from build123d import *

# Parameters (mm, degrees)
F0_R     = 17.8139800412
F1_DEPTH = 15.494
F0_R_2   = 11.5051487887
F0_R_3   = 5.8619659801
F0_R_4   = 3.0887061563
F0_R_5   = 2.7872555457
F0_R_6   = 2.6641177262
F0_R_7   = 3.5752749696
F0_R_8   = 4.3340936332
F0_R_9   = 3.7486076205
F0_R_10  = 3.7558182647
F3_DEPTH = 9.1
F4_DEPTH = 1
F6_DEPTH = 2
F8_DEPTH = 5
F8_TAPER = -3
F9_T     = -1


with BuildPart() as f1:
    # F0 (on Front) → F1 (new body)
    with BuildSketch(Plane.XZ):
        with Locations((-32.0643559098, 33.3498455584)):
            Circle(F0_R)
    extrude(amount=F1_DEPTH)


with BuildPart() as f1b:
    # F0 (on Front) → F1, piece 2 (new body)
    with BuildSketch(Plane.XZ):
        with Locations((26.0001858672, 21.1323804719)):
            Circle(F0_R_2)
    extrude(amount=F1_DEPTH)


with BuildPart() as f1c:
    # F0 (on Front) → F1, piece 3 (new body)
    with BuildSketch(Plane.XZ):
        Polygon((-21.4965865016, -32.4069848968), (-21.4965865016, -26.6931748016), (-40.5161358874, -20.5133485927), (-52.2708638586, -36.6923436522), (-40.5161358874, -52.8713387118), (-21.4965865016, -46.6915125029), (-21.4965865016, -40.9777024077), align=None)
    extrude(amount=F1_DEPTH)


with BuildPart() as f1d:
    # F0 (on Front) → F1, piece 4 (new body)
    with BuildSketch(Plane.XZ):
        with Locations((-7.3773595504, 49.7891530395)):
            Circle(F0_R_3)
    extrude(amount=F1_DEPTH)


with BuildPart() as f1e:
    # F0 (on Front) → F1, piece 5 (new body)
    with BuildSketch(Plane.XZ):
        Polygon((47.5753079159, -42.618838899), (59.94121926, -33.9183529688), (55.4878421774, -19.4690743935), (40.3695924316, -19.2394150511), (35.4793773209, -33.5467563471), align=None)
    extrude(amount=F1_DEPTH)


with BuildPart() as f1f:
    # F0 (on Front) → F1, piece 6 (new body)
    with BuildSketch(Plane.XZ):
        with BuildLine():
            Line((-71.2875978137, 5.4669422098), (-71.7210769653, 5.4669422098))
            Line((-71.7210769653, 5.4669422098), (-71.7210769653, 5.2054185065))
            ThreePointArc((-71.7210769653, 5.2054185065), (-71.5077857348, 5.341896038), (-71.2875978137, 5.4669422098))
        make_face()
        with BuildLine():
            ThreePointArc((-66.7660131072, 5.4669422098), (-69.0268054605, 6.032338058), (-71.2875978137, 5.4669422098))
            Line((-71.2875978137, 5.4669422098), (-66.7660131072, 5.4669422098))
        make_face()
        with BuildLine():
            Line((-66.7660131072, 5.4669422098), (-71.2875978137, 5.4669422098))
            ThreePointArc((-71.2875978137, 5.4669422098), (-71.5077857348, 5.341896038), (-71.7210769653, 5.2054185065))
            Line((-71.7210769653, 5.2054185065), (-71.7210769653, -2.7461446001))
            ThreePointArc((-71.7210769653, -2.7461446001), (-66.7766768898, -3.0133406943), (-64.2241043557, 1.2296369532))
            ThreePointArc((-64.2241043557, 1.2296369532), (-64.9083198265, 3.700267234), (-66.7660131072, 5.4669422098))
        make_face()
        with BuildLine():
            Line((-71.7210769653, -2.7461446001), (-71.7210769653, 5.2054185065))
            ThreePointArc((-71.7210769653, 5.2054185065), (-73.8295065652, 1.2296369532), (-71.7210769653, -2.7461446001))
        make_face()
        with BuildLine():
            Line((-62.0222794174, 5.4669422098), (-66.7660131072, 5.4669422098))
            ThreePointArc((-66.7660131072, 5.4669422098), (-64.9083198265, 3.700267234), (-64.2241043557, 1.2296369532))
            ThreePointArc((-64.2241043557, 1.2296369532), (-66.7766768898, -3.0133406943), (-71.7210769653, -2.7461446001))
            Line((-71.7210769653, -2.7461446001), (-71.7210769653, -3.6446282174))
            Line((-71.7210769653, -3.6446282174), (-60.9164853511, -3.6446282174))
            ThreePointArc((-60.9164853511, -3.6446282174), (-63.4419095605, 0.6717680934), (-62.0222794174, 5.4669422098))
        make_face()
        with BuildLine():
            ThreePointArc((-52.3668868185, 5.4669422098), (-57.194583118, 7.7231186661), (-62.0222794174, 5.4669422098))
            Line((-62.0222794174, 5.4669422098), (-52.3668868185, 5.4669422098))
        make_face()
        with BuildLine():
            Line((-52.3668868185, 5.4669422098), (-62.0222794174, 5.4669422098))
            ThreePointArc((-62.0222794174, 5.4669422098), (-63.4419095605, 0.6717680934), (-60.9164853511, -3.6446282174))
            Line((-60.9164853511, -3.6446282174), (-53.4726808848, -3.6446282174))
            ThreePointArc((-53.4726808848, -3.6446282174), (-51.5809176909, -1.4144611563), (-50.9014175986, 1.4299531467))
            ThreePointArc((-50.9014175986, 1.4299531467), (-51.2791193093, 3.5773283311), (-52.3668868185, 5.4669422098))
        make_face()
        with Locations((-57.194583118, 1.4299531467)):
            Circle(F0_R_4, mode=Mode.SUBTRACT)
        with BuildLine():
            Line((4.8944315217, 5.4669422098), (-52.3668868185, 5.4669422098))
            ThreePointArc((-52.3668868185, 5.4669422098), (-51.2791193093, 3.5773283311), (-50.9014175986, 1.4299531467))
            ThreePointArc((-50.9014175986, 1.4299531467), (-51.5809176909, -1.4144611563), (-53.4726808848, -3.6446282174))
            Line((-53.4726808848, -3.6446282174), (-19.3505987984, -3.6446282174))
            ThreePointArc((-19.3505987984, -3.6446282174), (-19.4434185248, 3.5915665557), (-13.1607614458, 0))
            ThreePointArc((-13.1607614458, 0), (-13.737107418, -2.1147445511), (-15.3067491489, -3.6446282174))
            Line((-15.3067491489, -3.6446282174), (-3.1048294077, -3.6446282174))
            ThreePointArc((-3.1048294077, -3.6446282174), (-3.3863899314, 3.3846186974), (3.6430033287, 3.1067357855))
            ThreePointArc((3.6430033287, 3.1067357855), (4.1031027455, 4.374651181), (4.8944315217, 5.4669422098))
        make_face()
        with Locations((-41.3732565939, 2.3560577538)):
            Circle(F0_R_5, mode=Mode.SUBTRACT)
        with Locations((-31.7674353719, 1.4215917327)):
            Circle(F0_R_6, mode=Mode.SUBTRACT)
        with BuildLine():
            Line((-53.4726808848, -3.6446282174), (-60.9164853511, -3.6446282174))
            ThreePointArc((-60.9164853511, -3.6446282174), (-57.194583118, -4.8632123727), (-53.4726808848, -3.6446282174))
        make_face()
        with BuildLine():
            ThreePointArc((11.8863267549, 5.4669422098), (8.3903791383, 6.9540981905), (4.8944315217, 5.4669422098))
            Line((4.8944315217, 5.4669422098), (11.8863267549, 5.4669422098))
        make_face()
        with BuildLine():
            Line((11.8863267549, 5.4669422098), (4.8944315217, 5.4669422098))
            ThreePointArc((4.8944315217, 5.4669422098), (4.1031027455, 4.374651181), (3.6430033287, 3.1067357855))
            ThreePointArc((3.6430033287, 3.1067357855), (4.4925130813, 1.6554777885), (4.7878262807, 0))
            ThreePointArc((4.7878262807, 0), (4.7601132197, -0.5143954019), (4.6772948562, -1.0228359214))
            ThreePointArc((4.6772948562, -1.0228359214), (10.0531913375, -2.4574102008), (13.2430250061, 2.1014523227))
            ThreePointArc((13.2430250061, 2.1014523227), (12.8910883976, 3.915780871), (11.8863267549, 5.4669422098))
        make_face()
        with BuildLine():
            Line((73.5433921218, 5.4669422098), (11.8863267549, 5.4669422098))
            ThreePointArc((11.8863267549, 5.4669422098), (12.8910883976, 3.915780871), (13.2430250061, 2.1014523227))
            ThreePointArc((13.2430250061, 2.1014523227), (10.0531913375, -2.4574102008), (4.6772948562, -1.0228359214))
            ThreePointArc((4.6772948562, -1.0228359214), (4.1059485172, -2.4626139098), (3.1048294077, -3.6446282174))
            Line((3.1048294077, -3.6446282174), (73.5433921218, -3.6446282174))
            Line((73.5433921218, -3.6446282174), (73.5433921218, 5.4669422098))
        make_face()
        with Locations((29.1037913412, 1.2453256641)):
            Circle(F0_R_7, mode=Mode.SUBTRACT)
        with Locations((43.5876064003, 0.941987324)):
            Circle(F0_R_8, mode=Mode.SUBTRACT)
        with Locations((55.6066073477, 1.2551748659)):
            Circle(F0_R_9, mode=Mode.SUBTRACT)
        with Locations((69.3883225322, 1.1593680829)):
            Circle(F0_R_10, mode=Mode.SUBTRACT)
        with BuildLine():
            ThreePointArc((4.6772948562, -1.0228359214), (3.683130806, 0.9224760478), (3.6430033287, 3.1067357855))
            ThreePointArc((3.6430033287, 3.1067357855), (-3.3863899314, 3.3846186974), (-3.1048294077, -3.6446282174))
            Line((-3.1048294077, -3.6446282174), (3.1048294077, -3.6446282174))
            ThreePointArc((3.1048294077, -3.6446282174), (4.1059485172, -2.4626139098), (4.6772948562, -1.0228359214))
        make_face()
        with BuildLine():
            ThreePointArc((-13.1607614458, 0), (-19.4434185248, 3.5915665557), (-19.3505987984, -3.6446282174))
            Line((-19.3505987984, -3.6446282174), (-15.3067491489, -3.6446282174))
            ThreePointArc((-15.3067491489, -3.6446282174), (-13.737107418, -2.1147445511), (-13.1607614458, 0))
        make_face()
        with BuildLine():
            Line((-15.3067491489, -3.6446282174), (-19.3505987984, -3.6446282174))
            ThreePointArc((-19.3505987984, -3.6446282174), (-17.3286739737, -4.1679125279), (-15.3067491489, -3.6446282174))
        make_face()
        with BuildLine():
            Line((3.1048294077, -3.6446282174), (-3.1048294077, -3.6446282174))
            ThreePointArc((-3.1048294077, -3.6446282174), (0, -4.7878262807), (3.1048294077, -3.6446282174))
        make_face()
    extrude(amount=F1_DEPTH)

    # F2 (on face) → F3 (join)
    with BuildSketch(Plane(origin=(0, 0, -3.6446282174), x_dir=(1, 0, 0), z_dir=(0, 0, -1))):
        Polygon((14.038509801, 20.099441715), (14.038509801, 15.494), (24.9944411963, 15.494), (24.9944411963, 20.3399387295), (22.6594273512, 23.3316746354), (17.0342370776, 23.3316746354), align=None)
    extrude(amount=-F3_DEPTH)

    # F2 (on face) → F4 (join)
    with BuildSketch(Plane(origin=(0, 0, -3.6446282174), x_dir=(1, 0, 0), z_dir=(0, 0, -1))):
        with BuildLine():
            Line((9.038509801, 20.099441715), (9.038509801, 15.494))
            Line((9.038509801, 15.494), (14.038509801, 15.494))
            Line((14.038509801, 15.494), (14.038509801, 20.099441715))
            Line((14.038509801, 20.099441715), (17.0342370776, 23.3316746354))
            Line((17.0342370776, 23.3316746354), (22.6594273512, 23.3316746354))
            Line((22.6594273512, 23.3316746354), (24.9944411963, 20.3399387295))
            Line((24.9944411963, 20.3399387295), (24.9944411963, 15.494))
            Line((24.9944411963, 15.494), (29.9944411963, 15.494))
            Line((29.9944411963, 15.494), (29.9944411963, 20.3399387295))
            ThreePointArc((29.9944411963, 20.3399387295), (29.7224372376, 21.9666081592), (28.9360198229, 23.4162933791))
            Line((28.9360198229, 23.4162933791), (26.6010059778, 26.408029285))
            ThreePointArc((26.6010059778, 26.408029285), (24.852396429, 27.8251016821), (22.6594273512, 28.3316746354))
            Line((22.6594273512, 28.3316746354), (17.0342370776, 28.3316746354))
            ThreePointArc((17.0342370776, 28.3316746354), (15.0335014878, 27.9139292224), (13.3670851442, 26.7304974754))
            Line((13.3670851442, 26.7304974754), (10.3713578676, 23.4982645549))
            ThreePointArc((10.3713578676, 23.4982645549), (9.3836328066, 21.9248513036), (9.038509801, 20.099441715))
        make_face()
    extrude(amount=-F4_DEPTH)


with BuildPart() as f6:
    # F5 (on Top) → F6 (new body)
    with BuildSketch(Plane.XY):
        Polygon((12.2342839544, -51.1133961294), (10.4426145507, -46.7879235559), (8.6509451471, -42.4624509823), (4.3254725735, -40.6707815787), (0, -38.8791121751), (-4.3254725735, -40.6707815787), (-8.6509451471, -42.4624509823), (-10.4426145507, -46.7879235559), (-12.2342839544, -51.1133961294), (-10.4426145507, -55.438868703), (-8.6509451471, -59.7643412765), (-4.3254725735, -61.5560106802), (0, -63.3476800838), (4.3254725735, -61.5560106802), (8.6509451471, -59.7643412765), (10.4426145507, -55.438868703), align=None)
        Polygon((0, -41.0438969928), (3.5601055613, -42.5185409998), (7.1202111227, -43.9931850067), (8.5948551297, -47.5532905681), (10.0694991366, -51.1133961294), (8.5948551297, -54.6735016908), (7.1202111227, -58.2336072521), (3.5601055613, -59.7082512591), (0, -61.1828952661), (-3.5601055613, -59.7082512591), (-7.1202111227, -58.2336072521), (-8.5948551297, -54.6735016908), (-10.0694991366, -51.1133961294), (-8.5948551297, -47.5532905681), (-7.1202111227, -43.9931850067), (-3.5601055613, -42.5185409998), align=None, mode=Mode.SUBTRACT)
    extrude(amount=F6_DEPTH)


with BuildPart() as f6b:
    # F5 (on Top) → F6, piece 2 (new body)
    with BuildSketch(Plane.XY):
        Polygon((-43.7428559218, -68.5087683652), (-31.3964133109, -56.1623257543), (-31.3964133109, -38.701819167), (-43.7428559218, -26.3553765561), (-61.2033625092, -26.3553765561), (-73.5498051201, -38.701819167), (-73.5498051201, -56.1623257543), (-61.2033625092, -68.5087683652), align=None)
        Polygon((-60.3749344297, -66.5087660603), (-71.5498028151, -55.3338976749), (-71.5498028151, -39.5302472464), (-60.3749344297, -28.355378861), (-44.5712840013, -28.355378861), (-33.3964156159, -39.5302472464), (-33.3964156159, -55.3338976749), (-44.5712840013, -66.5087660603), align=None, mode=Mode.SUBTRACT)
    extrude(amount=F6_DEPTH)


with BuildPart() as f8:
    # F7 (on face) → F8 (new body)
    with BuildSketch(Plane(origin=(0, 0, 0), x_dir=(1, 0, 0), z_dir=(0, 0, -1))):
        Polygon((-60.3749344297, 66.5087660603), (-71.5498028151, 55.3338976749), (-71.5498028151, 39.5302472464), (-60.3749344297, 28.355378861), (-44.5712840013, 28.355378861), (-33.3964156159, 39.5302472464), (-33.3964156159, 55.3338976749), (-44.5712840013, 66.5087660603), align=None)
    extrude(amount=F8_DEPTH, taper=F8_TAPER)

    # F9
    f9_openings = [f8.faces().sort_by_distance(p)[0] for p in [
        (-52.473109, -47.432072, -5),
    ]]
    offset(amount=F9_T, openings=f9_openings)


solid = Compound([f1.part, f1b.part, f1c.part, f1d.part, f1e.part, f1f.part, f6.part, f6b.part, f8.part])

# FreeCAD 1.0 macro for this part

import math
import FreeCAD as App
import Part
import Sketcher
Q = App.Units.Quantity


def faces_at(feature, points):
    """Names of the faces that lie closest to the given points."""
    faces = feature.Shape.Faces
    near = lambda p: min(range(len(faces)), key=lambda i: faces[i].distToShape(Part.Vertex(*p))[0])
    return sorted({f"Face{near(p) + 1}" for p in points})


def add_polygon(sketch, points):
    """Adds a closed chain of lines whose ends are joined by coincident constraints."""
    first, n = sketch.GeometryCount, len(points)
    for a, b in zip(points, points[1:] + points[:1]):
        sketch.addGeometry(Part.LineSegment(App.Vector(*a, 0), App.Vector(*b, 0)), False)
    for i in range(n):
        sketch.addConstraint(Sketcher.Constraint("Coincident", first + i, 2, first + (i + 1) % n, 1))

doc = App.newDocument("Part")
body = doc.addObject("PartDesign::Body", "Body")

# Sketch on XZ plane
sketch1 = body.newObject("Sketcher::SketchObject", "Sketch")
sketch1.AttachmentSupport = (doc.getObject("XZ_Plane"), [""])
sketch1.MapMode = "FlatFace"
sketch1.addGeometry(Part.Circle(App.Vector(-32.064356, 33.349846, 0), App.Vector(0, 0, 1), 17.81398), False)
sketch1.addConstraint([
    Sketcher.Constraint("Diameter", 0, 35.62796),
    Sketcher.Constraint("DistanceX", 0, 3, -1, 1, 32.064356),
    Sketcher.Constraint("DistanceY", -1, 1, 0, 3, 33.349846),
])
pad1 = body.newObject("PartDesign::Pad", "Pad")
pad1.Profile = sketch1
pad1.Length = 15.494
body2 = doc.addObject("PartDesign::Body", "Body001")

# Sketch on XZ plane
sketch2 = body2.newObject("Sketcher::SketchObject", "Sketch001")
sketch2.AttachmentSupport = (doc.getObject("XZ_Plane001"), [""])
sketch2.MapMode = "FlatFace"
sketch2.addGeometry(Part.Circle(App.Vector(26.000186, 21.13238, 0), App.Vector(0, 0, 1), 11.505149), False)
sketch2.addConstraint([
    Sketcher.Constraint("Diameter", 0, 23.010298),
    Sketcher.Constraint("DistanceY", -1, 1, 0, 3, 21.13238),
    Sketcher.Constraint("DistanceX", -1, 1, 0, 3, 26.000186),
])
pad2 = body2.newObject("PartDesign::Pad", "Pad001")
pad2.Profile = sketch2
pad2.Length = 15.494
body3 = doc.addObject("PartDesign::Body", "Body002")

# Sketch on XZ plane
sketch3 = body3.newObject("Sketcher::SketchObject", "Sketch002")
sketch3.AttachmentSupport = (doc.getObject("XZ_Plane002"), [""])
sketch3.MapMode = "FlatFace"
add_polygon(sketch3, [(-21.496587, -26.693175), (-40.516136, -20.513349), (-52.270864, -36.692344), (-40.516136, -52.871339), (-21.496587, -46.691513)])  # lines 0-4
sketch3.addConstraint([
    Sketcher.Constraint("Vertical", 4),
    Sketcher.Constraint("Vertical", 0, 2, 2, 2),
    Sketcher.Constraint("Equal", 0, 1),
    Sketcher.Constraint("Equal", 1, 2),
    Sketcher.Constraint("Equal", 2, 3),
    Sketcher.Constraint("Angle", 0, Q("162 deg")),
    Sketcher.Constraint("Angle", 1, Q("-126 deg")),
    Sketcher.Constraint("DistanceY", 4, 1, 4, 2, 19.998338),
    Sketcher.Constraint("DistanceY", 0, 2, -1, 1, 20.513349),
    Sketcher.Constraint("DistanceX", 0, 2, -1, 1, 40.516136),
])
pad3 = body3.newObject("PartDesign::Pad", "Pad002")
pad3.Profile = sketch3
pad3.Length = 15.494
body4 = doc.addObject("PartDesign::Body", "Body003")

# Sketch on XZ plane
sketch4 = body4.newObject("Sketcher::SketchObject", "Sketch003")
sketch4.AttachmentSupport = (doc.getObject("XZ_Plane003"), [""])
sketch4.MapMode = "FlatFace"
sketch4.addGeometry(Part.Circle(App.Vector(-7.37736, 49.789153, 0), App.Vector(0, 0, 1), 5.861966), False)
sketch4.addConstraint([
    Sketcher.Constraint("Diameter", 0, 11.723932),
    Sketcher.Constraint("DistanceX", 0, 3, -1, 1, 7.37736),
    Sketcher.Constraint("DistanceY", -1, 1, 0, 3, 49.789153),
])
pad4 = body4.newObject("PartDesign::Pad", "Pad003")
pad4.Profile = sketch4
pad4.Length = 15.494
body5 = doc.addObject("PartDesign::Body", "Body004")

# Sketch on XZ plane
sketch5 = body5.newObject("Sketcher::SketchObject", "Sketch004")
sketch5.AttachmentSupport = (doc.getObject("XZ_Plane004"), [""])
sketch5.MapMode = "FlatFace"
add_polygon(sketch5, [(47.575308, -42.618839), (59.941219, -33.918353), (55.487842, -19.469074), (40.369592, -19.239415), (35.479377, -33.546756)])  # lines 0-4
sketch5.addConstraint([
    Sketcher.Constraint("Equal", 0, 1),
    Sketcher.Constraint("Equal", 1, 2),
    Sketcher.Constraint("Equal", 2, 3),
    Sketcher.Constraint("Equal", 3, 4),
    Sketcher.Constraint("DistanceX", -1, 1, 0, 2, 59.941219),
    Sketcher.Constraint("DistanceY", 4, 2, -1, 1, 42.618839),
    Sketcher.Constraint("DistanceY", 0, 2, 1, 2, 14.449279),
    Sketcher.Constraint("DistanceX", 2, 2, 1, 2, 15.11825),
    Sketcher.Constraint("DistanceY", 1, 2, 2, 2, 0.229659),
    Sketcher.Constraint("DistanceY", 3, 2, 2, 2, 14.307341),
])
pad5 = body5.newObject("PartDesign::Pad", "Pad004")
pad5.Profile = sketch5
pad5.Length = 15.494
body6 = doc.addObject("PartDesign::Body", "Body005")

# Sketch on XZ plane
sketch6 = body6.newObject("Sketcher::SketchObject", "Sketch005")
sketch6.AttachmentSupport = (doc.getObject("XZ_Plane005"), [""])
sketch6.MapMode = "FlatFace"
sketch6.addGeometry([
    Part.LineSegment(App.Vector(-71.287598, 5.466942, 0), App.Vector(-71.721077, 5.466942, 0)),  # 0
    Part.LineSegment(App.Vector(-71.721077, 5.466942, 0), App.Vector(-71.721077, 5.205419, 0)),  # 1
    Part.ArcOfCircle(Part.Circle(App.Vector(-69.026805, 1.229637, 0), App.Vector(0, 0, 1), 4.802701), math.radians(124.124351), math.radians(235.875649)),  # 2
    Part.LineSegment(App.Vector(-71.721077, -2.746145, 0), App.Vector(-71.721077, -3.644628, 0)),  # 3
    Part.LineSegment(App.Vector(-71.721077, -3.644628, 0), App.Vector(-60.916485, -3.644628, 0)),  # 4
    Part.ArcOfCircle(Part.Circle(App.Vector(-57.194583, 1.429953, 0), App.Vector(0, 0, 1), 6.293166), math.radians(-126.257821), math.radians(-53.742179)),  # 5
    Part.LineSegment(App.Vector(-53.472681, -3.644628, 0), App.Vector(-19.350599, -3.644628, 0)),  # 6
    Part.ArcOfCircle(Part.Circle(App.Vector(-17.328674, 0, 0), App.Vector(0, 0, 1), 4.167913), math.radians(-119.020132), math.radians(-60.979868)),  # 7
    Part.LineSegment(App.Vector(-15.306749, -3.644628, 0), App.Vector(-3.104829, -3.644628, 0)),  # 8
    Part.ArcOfCircle(Part.Circle(App.Vector(0, 0, 0), App.Vector(0, 0, 1), 4.787826), math.radians(-130.42741), math.radians(-49.57259)),  # 9
    Part.LineSegment(App.Vector(3.104829, -3.644628, 0), App.Vector(73.543392, -3.644628, 0)),  # 10
    Part.LineSegment(App.Vector(73.543392, -3.644628, 0), App.Vector(73.543392, 5.466942, 0)),  # 11
    Part.LineSegment(App.Vector(73.543392, 5.466942, 0), App.Vector(11.886327, 5.466942, 0)),  # 12
    Part.ArcOfCircle(Part.Circle(App.Vector(8.390379, 2.101452, 0), App.Vector(0, 0, 1), 4.852646), math.radians(43.910756), math.radians(136.089244)),  # 13
    Part.LineSegment(App.Vector(4.894432, 5.466942, 0), App.Vector(-52.366887, 5.466942, 0)),  # 14
    Part.ArcOfCircle(Part.Circle(App.Vector(-57.194583, 1.429953, 0), App.Vector(0, 0, 1), 6.293166), math.radians(39.902853), math.radians(140.097147)),  # 15
    Part.LineSegment(App.Vector(-62.022279, 5.466942, 0), App.Vector(-66.766013, 5.466942, 0)),  # 16
    Part.ArcOfCircle(Part.Circle(App.Vector(-69.026805, 1.229637, 0), App.Vector(0, 0, 1), 4.802701), math.radians(61.918079), math.radians(118.081921)),  # 17
    Part.ArcOfCircle(Part.Circle(App.Vector(0, 0, 0), App.Vector(0, 0, 1), 4.787826), math.radians(-12.335319), math.radians(0)),  # 18
    Part.ArcOfCircle(Part.Circle(App.Vector(8.390379, 2.101452, 0), App.Vector(0, 0, 1), 4.852646), math.radians(168.043915), math.radians(220.078152)),  # 19
    Part.ArcOfCircle(Part.Circle(App.Vector(0, 0, 0), App.Vector(0, 0, 1), 4.787826), math.radians(0), math.radians(40.457386)),  # 20
    Part.Circle(App.Vector(-57.194583, 1.429953, 0), App.Vector(0, 0, 1), 3.088706),  # 21
    Part.Circle(App.Vector(-31.767435, 1.421592, 0), App.Vector(0, 0, 1), 2.664118),  # 22
    Part.Circle(App.Vector(-41.373257, 2.356058, 0), App.Vector(0, 0, 1), 2.787256),  # 23
    Part.Circle(App.Vector(29.103791, 1.245326, 0), App.Vector(0, 0, 1), 3.575275),  # 24
    Part.Circle(App.Vector(43.587606, 0.941987, 0), App.Vector(0, 0, 1), 4.334094),  # 25
    Part.Circle(App.Vector(55.606607, 1.255175, 0), App.Vector(0, 0, 1), 3.748608),  # 26
    Part.Circle(App.Vector(69.388323, 1.159368, 0), App.Vector(0, 0, 1), 3.755818),  # 27
], False)
sketch6.addConstraint([
    Sketcher.Constraint("Coincident", 0, 2, 1, 1),
    Sketcher.Constraint("Coincident", 1, 2, 2, 1),
    Sketcher.Constraint("Coincident", 2, 2, 3, 1),
    Sketcher.Constraint("Coincident", 3, 2, 4, 1),
    Sketcher.Constraint("Coincident", 4, 2, 5, 1),
    Sketcher.Constraint("Coincident", 5, 2, 6, 1),
    Sketcher.Constraint("Coincident", 6, 2, 7, 1),
    Sketcher.Constraint("Coincident", 7, 2, 8, 1),
    Sketcher.Constraint("Coincident", 8, 2, 9, 1),
    Sketcher.Constraint("Coincident", 9, 2, 10, 1),
    Sketcher.Constraint("Coincident", 10, 2, 11, 1),
    Sketcher.Constraint("Coincident", 11, 2, 12, 1),
    Sketcher.Constraint("Coincident", 12, 2, 13, 1),
    Sketcher.Constraint("Coincident", 13, 2, 14, 1),
    Sketcher.Constraint("Coincident", 14, 2, 15, 1),
    Sketcher.Constraint("Coincident", 15, 2, 16, 1),
    Sketcher.Constraint("Coincident", 16, 2, 17, 1),
    Sketcher.Constraint("Coincident", 17, 2, 0, 1),
    Sketcher.Constraint("Coincident", 18, 1, 19, 2),
    Sketcher.Constraint("Coincident", 19, 1, 20, 2),
    Sketcher.Constraint("Tangent", 20, 1, 18, 2),
    Sketcher.Constraint("Horizontal", 0),
    Sketcher.Constraint("Vertical", 1),
    Sketcher.Constraint("Vertical", 3),
    Sketcher.Constraint("Horizontal", 4),
    Sketcher.Constraint("Horizontal", 6),
    Sketcher.Constraint("Horizontal", 8),
    Sketcher.Constraint("Horizontal", 10),
    Sketcher.Constraint("Vertical", 11),
    Sketcher.Constraint("Horizontal", 12),
    Sketcher.Constraint("Horizontal", 14),
    Sketcher.Constraint("Horizontal", 16),
    Sketcher.Constraint("Coincident", 9, 3, -1, 1),
    Sketcher.Constraint("Coincident", 18, 3, -1, 1),
    Sketcher.Constraint("Coincident", 15, 3, 5, 3),
    Sketcher.Constraint("Coincident", 17, 3, 2, 3),
    Sketcher.Constraint("Coincident", 19, 3, 13, 3),
    Sketcher.Constraint("Coincident", 21, 3, 5, 3),
    Sketcher.Constraint("Equal", 5, 15),
    Sketcher.Constraint("Equal", 2, 17),
    Sketcher.Constraint("Equal", 9, 18),
    Sketcher.Constraint("Equal", 13, 19),
    Sketcher.Constraint("Equal", 18, 20),
    Sketcher.Constraint("PointOnObject", 7, 3, -1),
    Sketcher.Constraint("PointOnObject", 20, 1, -1),
    Sketcher.Constraint("Horizontal", 4, 2, 5, 2),
    Sketcher.Constraint("Horizontal", 6, 2, 7, 2),
    Sketcher.Constraint("Horizontal", 8, 2, 9, 2),
    Sketcher.Constraint("Horizontal", 0, 2, 11, 2),
    Sketcher.Constraint("Horizontal", 12, 2, 13, 2),
    Sketcher.Constraint("Horizontal", 14, 2, 15, 2),
    Sketcher.Constraint("Vertical", 1, 2, 2, 2),
    Sketcher.Constraint("Radius", 2, 4.802701),
    Sketcher.Constraint("Diameter", 23, 5.574511),
    Sketcher.Constraint("Diameter", 24, 7.15055),
    Sketcher.Constraint("Diameter", 21, 6.177412),
    Sketcher.Constraint("Diameter", 22, 5.328235),
    Sketcher.Constraint("Diameter", 25, 8.668187),
    Sketcher.Constraint("Diameter", 26, 7.497215),
    Sketcher.Constraint("Diameter", 27, 7.511637),
    Sketcher.Constraint("Radius", 5, 6.293166),
    Sketcher.Constraint("Radius", 7, 4.167913),
    Sketcher.Constraint("Radius", 9, 4.787826),
    Sketcher.Constraint("Radius", 13, 4.852646),
    Sketcher.Constraint("DistanceX", 25, 3, 26, 3, 12.019001),
    Sketcher.Constraint("DistanceX", 0, 2, 0, 1, 0.433479),
    Sketcher.Constraint("DistanceX", 4, 1, 4, 2, 10.804592),
    Sketcher.Constraint("DistanceX", 8, 1, 8, 2, 12.20192),
    Sketcher.Constraint("DistanceX", 14, 2, 14, 1, 57.261318),
    Sketcher.Constraint("DistanceY", 11, 1, 11, 2, 9.11157),
    Sketcher.Constraint("DistanceX", 6, 2, -1, 1, 19.350599),
    Sketcher.Constraint("DistanceY", 5, 3, 13, 3, 0.671499),
    Sketcher.Constraint("DistanceX", 24, 3, 10, 2, 44.439601),
    Sketcher.Constraint("DistanceX", 6, 1, 6, 2, 34.122082),
    Sketcher.Constraint("DistanceX", 10, 1, 10, 2, 70.438563),
    Sketcher.Constraint("DistanceX", 12, 2, 12, 1, 61.657065),
    Sketcher.Constraint("DistanceX", 16, 2, 16, 1, 4.743734),
    Sketcher.Constraint("DistanceY", -1, 1, 22, 3, 1.421592),
    Sketcher.Constraint("DistanceY", -1, 1, 27, 3, 1.159368),
    Sketcher.Constraint("DistanceX", 22, 3, 7, 3, 14.438761),
    Sketcher.Constraint("DistanceX", 23, 3, 22, 3, 9.605821),
    Sketcher.Constraint("DistanceY", 25, 3, 24, 3, 0.303338),
    Sketcher.Constraint("DistanceY", 24, 3, 26, 3, 0.009849),
    Sketcher.Constraint("DistanceX", 13, 3, 26, 3, 47.216228),
    Sketcher.Constraint("DistanceY", 25, 3, 27, 3, 0.217381),
    Sketcher.Constraint("DistanceX", 24, 3, 27, 3, 40.284531),
    Sketcher.Constraint("DistanceY", -1, 1, 23, 3, 2.356058),
])
pad6 = body6.newObject("PartDesign::Pad", "Pad005")
pad6.Profile = sketch6
pad6.Length = 15.494

# Sketch on XY plane
sketch7 = body6.newObject("Sketcher::SketchObject", "Sketch006")
sketch7.AttachmentSupport = (doc.getObject("XY_Plane005"), [""])
sketch7.MapMode = "FlatFace"
sketch7.AttachmentOffset = App.Placement(App.Vector(0, 0, -3.644628), App.Rotation())
add_polygon(sketch7, [(14.03851, -20.099442), (14.03851, -15.494), (24.994441, -15.494), (24.994441, -20.339939), (22.659427, -23.331675), (17.034237, -23.331675)])  # lines 0-5
sketch7.addConstraint([
    Sketcher.Constraint("Vertical", 0),
    Sketcher.Constraint("Horizontal", 1),
    Sketcher.Constraint("Vertical", 2),
    Sketcher.Constraint("Horizontal", 4),
    Sketcher.Constraint("DistanceY", 0, 2, -1, 1, 15.494),
    Sketcher.Constraint("Distance", 3, 3.795099),
    Sketcher.Constraint("DistanceX", 1, 1, 1, 2, 10.955931),
    Sketcher.Constraint("DistanceX", 4, 2, 4, 1, 5.62519),
    Sketcher.Constraint("DistanceY", 0, 1, 0, 2, 4.605442),
    Sketcher.Constraint("DistanceY", 2, 2, 2, 1, 4.845939),
    Sketcher.Constraint("DistanceX", -1, 1, 0, 2, 14.03851),
    Sketcher.Constraint("Distance", 5, 4.407007),
])
pad7 = body6.newObject("PartDesign::Pad", "Pad006")
pad7.Profile = sketch7
pad7.Length = 9.1

# Sketch on XY plane
sketch8 = body6.newObject("Sketcher::SketchObject", "Sketch007")
sketch8.AttachmentSupport = (doc.getObject("XY_Plane005"), [""])
sketch8.MapMode = "FlatFace"
sketch8.AttachmentOffset = App.Placement(App.Vector(0, 0, -3.644628), App.Rotation())
sketch8.addGeometry([
    Part.LineSegment(App.Vector(9.03851, -20.099442, 0), App.Vector(9.03851, -15.494, 0)),  # 0
    Part.LineSegment(App.Vector(9.03851, -15.494, 0), App.Vector(14.03851, -15.494, 0)),  # 1
    Part.LineSegment(App.Vector(14.03851, -15.494, 0), App.Vector(14.03851, -20.099442, 0)),  # 2
    Part.LineSegment(App.Vector(14.03851, -20.099442, 0), App.Vector(17.034237, -23.331675, 0)),  # 3
    Part.LineSegment(App.Vector(17.034237, -23.331675, 0), App.Vector(22.659427, -23.331675, 0)),  # 4
    Part.LineSegment(App.Vector(22.659427, -23.331675, 0), App.Vector(24.994441, -20.339939, 0)),  # 5
    Part.LineSegment(App.Vector(24.994441, -20.339939, 0), App.Vector(24.994441, -15.494, 0)),  # 6
    Part.LineSegment(App.Vector(24.994441, -15.494, 0), App.Vector(29.994441, -15.494, 0)),  # 7
    Part.LineSegment(App.Vector(29.994441, -15.494, 0), App.Vector(29.994441, -20.339939, 0)),  # 8
    Part.ArcOfCircle(Part.Circle(App.Vector(24.994441, -20.339939, 0), App.Vector(0, 0, 1), 5), math.radians(-37.971609), math.radians(0)),  # 9
    Part.LineSegment(App.Vector(28.93602, -23.416293, 0), App.Vector(26.601006, -26.408029, 0)),  # 10
    Part.ArcOfCircle(Part.Circle(App.Vector(22.659427, -23.331675, 0), App.Vector(0, 0, 1), 5), math.radians(-90), math.radians(-37.971609)),  # 11
    Part.LineSegment(App.Vector(22.659427, -28.331675, 0), App.Vector(17.034237, -28.331675, 0)),  # 12
    Part.ArcOfCircle(Part.Circle(App.Vector(17.034237, -23.331675, 0), App.Vector(0, 0, 1), 5), math.radians(-137.174752), math.radians(-90)),  # 13
    Part.LineSegment(App.Vector(13.367085, -26.730497, 0), App.Vector(10.371358, -23.498265, 0)),  # 14
    Part.ArcOfCircle(Part.Circle(App.Vector(14.03851, -20.099442, 0), App.Vector(0, 0, 1), 5), math.radians(180), math.radians(222.825248)),  # 15
], False)
sketch8.addConstraint([
    Sketcher.Constraint("Coincident", 0, 2, 1, 1),
    Sketcher.Constraint("Coincident", 1, 2, 2, 1),
    Sketcher.Constraint("Coincident", 2, 2, 3, 1),
    Sketcher.Constraint("Coincident", 3, 2, 4, 1),
    Sketcher.Constraint("Coincident", 4, 2, 5, 1),
    Sketcher.Constraint("Coincident", 5, 2, 6, 1),
    Sketcher.Constraint("Coincident", 6, 2, 7, 1),
    Sketcher.Constraint("Coincident", 7, 2, 8, 1),
    Sketcher.Constraint("Tangent", 8, 2, 9, 2),
    Sketcher.Constraint("Tangent", 9, 1, 10, 1),
    Sketcher.Constraint("Tangent", 10, 2, 11, 2),
    Sketcher.Constraint("Tangent", 11, 1, 12, 1),
    Sketcher.Constraint("Tangent", 12, 2, 13, 2),
    Sketcher.Constraint("Tangent", 13, 1, 14, 1),
    Sketcher.Constraint("Tangent", 14, 2, 15, 2),
    Sketcher.Constraint("Tangent", 15, 1, 0, 1),
    Sketcher.Constraint("Vertical", 0),
    Sketcher.Constraint("Horizontal", 1),
    Sketcher.Constraint("Vertical", 2),
    Sketcher.Constraint("Horizontal", 4),
    Sketcher.Constraint("Vertical", 6),
    Sketcher.Constraint("Horizontal", 7),
    Sketcher.Constraint("Vertical", 8),
    Sketcher.Constraint("Horizontal", 12),
    Sketcher.Constraint("Coincident", 2, 2, 15, 3),
    Sketcher.Constraint("Coincident", 3, 2, 13, 3),
    Sketcher.Constraint("Coincident", 4, 2, 11, 3),
    Sketcher.Constraint("Coincident", 5, 2, 9, 3),
    Sketcher.Constraint("Equal", 9, 11),
    Sketcher.Constraint("Equal", 13, 15),
    Sketcher.Constraint("Horizontal", 1, 2, 6, 2),
    Sketcher.Constraint("Radius", 9, 5.0),
    Sketcher.Constraint("DistanceY", 0, 2, -1, 1, 15.494),
    Sketcher.Constraint("Distance", 5, 3.795099),
    Sketcher.Constraint("DistanceX", 4, 1, 4, 2, 5.62519),
    Sketcher.Constraint("DistanceY", 0, 1, 0, 2, 4.605442),
    Sketcher.Constraint("DistanceY", 6, 1, 6, 2, 4.845939),
    Sketcher.Constraint("DistanceX", -1, 1, 9, 3, 24.994441),
    Sketcher.Constraint("DistanceX", -1, 1, 15, 3, 14.03851),
    Sketcher.Constraint("DistanceX", -1, 1, 9, 1, 28.93602),
])
pad8 = body6.newObject("PartDesign::Pad", "Pad007")
pad8.Profile = sketch8
pad8.Length = 1
body7 = doc.addObject("PartDesign::Body", "Body006")

# Sketch on XY plane
sketch9 = body7.newObject("Sketcher::SketchObject", "Sketch008")
sketch9.AttachmentSupport = (doc.getObject("XY_Plane006"), [""])
sketch9.MapMode = "FlatFace"
add_polygon(sketch9, [(12.234284, -51.113396), (10.442615, -46.787924), (8.650945, -42.462451), (4.325473, -40.670782), (0, -38.879112), (-4.325473, -40.670782), (-8.650945, -42.462451), (-10.442615, -46.787924), (-12.234284, -51.113396), (-10.442615, -55.438869), (-8.650945, -59.764341), (-4.325473, -61.556011), (0, -63.34768), (4.325473, -61.556011), (8.650945, -59.764341), (10.442615, -55.438869)])  # lines 0-15
add_polygon(sketch9, [(-3.560106, -42.518541), (0, -41.043897), (3.560106, -42.518541), (7.120211, -43.993185), (8.594855, -47.553291), (10.069499, -51.113396), (8.594855, -54.673502), (7.120211, -58.233607), (3.560106, -59.708251), (0, -61.182895), (-3.560106, -59.708251), (-7.120211, -58.233607), (-8.594855, -54.673502), (-10.069499, -51.113396), (-8.594855, -47.553291), (-7.120211, -43.993185)])  # lines 16-31
sketch9.addConstraint([
    Sketcher.Constraint("Symmetric", 2, 2, 4, 2, -2),
    Sketcher.Constraint("Symmetric", 1, 2, 5, 2, -2),
    Sketcher.Constraint("Symmetric", 0, 2, 6, 2, -2),
    Sketcher.Constraint("Symmetric", 10, 2, 12, 2, -2),
    Sketcher.Constraint("Symmetric", 9, 2, 13, 2, -2),
    Sketcher.Constraint("Symmetric", 8, 2, 14, 2, -2),
    Sketcher.Constraint("Symmetric", 7, 2, 15, 2, -2),
    Sketcher.Constraint("Symmetric", 23, 2, 25, 2, -2),
    Sketcher.Constraint("Symmetric", 22, 2, 26, 2, -2),
    Sketcher.Constraint("Symmetric", 21, 2, 27, 2, -2),
    Sketcher.Constraint("Symmetric", 20, 2, 28, 2, -2),
    Sketcher.Constraint("Symmetric", 19, 2, 29, 2, -2),
    Sketcher.Constraint("Symmetric", 18, 2, 30, 2, -2),
    Sketcher.Constraint("Symmetric", 17, 2, 31, 2, -2),
    Sketcher.Constraint("PointOnObject", 3, 2, -2),
    Sketcher.Constraint("PointOnObject", 11, 2, -2),
    Sketcher.Constraint("PointOnObject", 16, 2, -2),
    Sketcher.Constraint("PointOnObject", 24, 2, -2),
    Sketcher.Constraint("Parallel", 0, 1),
    Sketcher.Constraint("Parallel", 2, 3),
    Sketcher.Constraint("Perpendicular", 1, 4),
    Sketcher.Constraint("Perpendicular", 5, 8),
    Sketcher.Constraint("Parallel", 8, 9),
    Sketcher.Constraint("Perpendicular", 7, 10),
    Sketcher.Constraint("Parallel", 10, 11),
    Sketcher.Constraint("Parallel", 13, 16),
    Sketcher.Constraint("Parallel", 17, 18),
    Sketcher.Constraint("Perpendicular", 16, 19),
    Sketcher.Constraint("Parallel", 19, 20),
    Sketcher.Constraint("Perpendicular", 18, 21),
    Sketcher.Constraint("Parallel", 21, 22),
    Sketcher.Constraint("Perpendicular", 20, 23),
    Sketcher.Constraint("Parallel", 23, 24),
    Sketcher.Constraint("Horizontal", 15, 2, 20, 2),
    Sketcher.Constraint("Vertical", 6, 2, 8, 2),
    Sketcher.Constraint("Vertical", 5, 2, 9, 2),
    Sketcher.Constraint("Vertical", 4, 2, 10, 2),
    Sketcher.Constraint("Vertical", 19, 2, 21, 2),
    Sketcher.Constraint("Vertical", 18, 2, 22, 2),
    Sketcher.Constraint("Vertical", 17, 2, 23, 2),
    Sketcher.Constraint("Equal", 0, 1),
    Sketcher.Constraint("Equal", 1, 2),
    Sketcher.Constraint("Equal", 2, 3),
    Sketcher.Constraint("Equal", 17, 18),
    Sketcher.Constraint("Equal", 18, 19),
    Sketcher.Constraint("Equal", 19, 20),
    Sketcher.Constraint("Angle", 0, Q("112.5 deg")),
    Sketcher.Constraint("DistanceX", -1, 1, 20, 2, 10.069499),
    Sketcher.Constraint("DistanceY", 21, 2, -1, 1, 54.673502),
    Sketcher.Constraint("DistanceY", 1, 2, -1, 1, 42.462451),
])
pad9 = body7.newObject("PartDesign::Pad", "Pad008")
pad9.Profile = sketch9
pad9.Length = 2
body8 = doc.addObject("PartDesign::Body", "Body007")

# Sketch on XY plane
sketch10 = body8.newObject("Sketcher::SketchObject", "Sketch009")
sketch10.AttachmentSupport = (doc.getObject("XY_Plane007"), [""])
sketch10.MapMode = "FlatFace"
add_polygon(sketch10, [(-43.742856, -68.508768), (-31.396413, -56.162326), (-31.396413, -38.701819), (-43.742856, -26.355377), (-61.203363, -26.355377), (-73.549805, -38.701819), (-73.549805, -56.162326), (-61.203363, -68.508768)])  # lines 0-7
add_polygon(sketch10, [(-44.571284, -66.508766), (-60.374934, -66.508766), (-71.549803, -55.333898), (-71.549803, -39.530247), (-60.374934, -28.355379), (-44.571284, -28.355379), (-33.396416, -39.530247), (-33.396416, -55.333898)])  # lines 8-15
sketch10.addConstraint([
    Sketcher.Constraint("Vertical", 1),
    Sketcher.Constraint("Horizontal", 3),
    Sketcher.Constraint("Vertical", 5),
    Sketcher.Constraint("Horizontal", 7),
    Sketcher.Constraint("Horizontal", 8),
    Sketcher.Constraint("Vertical", 10),
    Sketcher.Constraint("Horizontal", 12),
    Sketcher.Constraint("Vertical", 14),
    Sketcher.Constraint("Perpendicular", 0, 2),
    Sketcher.Constraint("Perpendicular", 2, 4),
    Sketcher.Constraint("Perpendicular", 4, 6),
    Sketcher.Constraint("Parallel", 6, 9),
    Sketcher.Constraint("Perpendicular", 9, 11),
    Sketcher.Constraint("Perpendicular", 11, 13),
    Sketcher.Constraint("Perpendicular", 13, 15),
    Sketcher.Constraint("Horizontal", 1, 2, 4, 2),
    Sketcher.Constraint("Horizontal", 0, 2, 5, 2),
    Sketcher.Constraint("Horizontal", 10, 2, 13, 2),
    Sketcher.Constraint("Horizontal", 9, 2, 14, 2),
    Sketcher.Constraint("Vertical", 3, 2, 6, 2),
    Sketcher.Constraint("Vertical", 2, 2, 7, 2),
    Sketcher.Constraint("Vertical", 8, 2, 11, 2),
    Sketcher.Constraint("Equal", 7, 1),
    Sketcher.Constraint("Equal", 12, 10),
    Sketcher.Constraint("DistanceX", 8, 2, 8, 1, 15.80365),
    Sketcher.Constraint("Distance", 9, 15.80365),
    Sketcher.Constraint("DistanceX", 3, 2, 3, 1, 17.460507),
    Sketcher.Constraint("DistanceY", 1, 2, -1, 1, 38.701819),
    Sketcher.Constraint("DistanceY", 6, 2, -1, 1, 68.508768),
    Sketcher.Constraint("DistanceY", 11, 2, -1, 1, 28.355379),
    Sketcher.Constraint("DistanceX", 6, 2, 8, 2, 0.828428),
    Sketcher.Constraint("DistanceX", 0, 2, -1, 1, 31.396413),
])
pad10 = body8.newObject("PartDesign::Pad", "Pad009")
pad10.Profile = sketch10
pad10.Length = 2
body9 = doc.addObject("PartDesign::Body", "Body008")

# Sketch on XY plane
sketch11 = body9.newObject("Sketcher::SketchObject", "Sketch010")
sketch11.AttachmentSupport = (doc.getObject("XY_Plane008"), [""])
sketch11.MapMode = "FlatFace"
add_polygon(sketch11, [(-60.374934, -66.508766), (-71.549803, -55.333898), (-71.549803, -39.530247), (-60.374934, -28.355379), (-44.571284, -28.355379), (-33.396416, -39.530247), (-33.396416, -55.333898), (-44.571284, -66.508766)])  # lines 0-7
sketch11.addConstraint([
    Sketcher.Constraint("Vertical", 1),
    Sketcher.Constraint("Horizontal", 3),
    Sketcher.Constraint("Vertical", 5),
    Sketcher.Constraint("Horizontal", 7),
    Sketcher.Constraint("Perpendicular", 0, 2),
    Sketcher.Constraint("Perpendicular", 2, 4),
    Sketcher.Constraint("Perpendicular", 4, 6),
    Sketcher.Constraint("Horizontal", 1, 2, 4, 2),
    Sketcher.Constraint("Horizontal", 0, 2, 5, 2),
    Sketcher.Constraint("Vertical", 3, 2, 6, 2),
    Sketcher.Constraint("Vertical", 2, 2, 7, 2),
    Sketcher.Constraint("Equal", 7, 1),
    Sketcher.Constraint("DistanceX", 3, 1, 3, 2, 15.80365),
    Sketcher.Constraint("Distance", 0, 15.80365),
    Sketcher.Constraint("DistanceY", 2, 2, -1, 1, 28.355379),
    Sketcher.Constraint("DistanceX", 0, 2, -1, 1, 71.549803),
])
pad11 = body9.newObject("PartDesign::Pad", "Pad010")
pad11.Profile = sketch11
pad11.Length = 5
pad11.Reversed = True
pad11.TaperAngle = 3
doc.recompute()

thickness = body9.newObject("PartDesign::Thickness", "Thickness")
thickness.Base = (pad11, faces_at(pad11, [(-52.473, -47.432, -5)]))
thickness.Value = 1
thickness.Reversed = True
thickness.Join = "Arc"

doc.recompute()
